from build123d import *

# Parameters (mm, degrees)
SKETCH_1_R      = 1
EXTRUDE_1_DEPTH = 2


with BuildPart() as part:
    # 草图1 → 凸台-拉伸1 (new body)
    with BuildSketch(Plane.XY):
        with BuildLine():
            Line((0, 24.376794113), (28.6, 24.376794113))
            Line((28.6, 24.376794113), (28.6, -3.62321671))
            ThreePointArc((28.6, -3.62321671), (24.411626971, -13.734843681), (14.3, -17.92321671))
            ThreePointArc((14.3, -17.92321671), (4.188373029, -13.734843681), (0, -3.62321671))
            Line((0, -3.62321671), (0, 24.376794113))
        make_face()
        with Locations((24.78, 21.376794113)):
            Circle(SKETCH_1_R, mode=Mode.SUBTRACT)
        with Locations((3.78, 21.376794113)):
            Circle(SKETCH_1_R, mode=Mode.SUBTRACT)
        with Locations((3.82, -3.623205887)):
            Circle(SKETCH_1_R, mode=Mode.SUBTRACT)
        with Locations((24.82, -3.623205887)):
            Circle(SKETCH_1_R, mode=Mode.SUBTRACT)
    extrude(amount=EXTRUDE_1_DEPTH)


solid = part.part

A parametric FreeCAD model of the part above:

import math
import FreeCAD as App
import Part
import Sketcher

V = App.Vector
Q = App.Units.Quantity

doc = App.newDocument("Part")
body = doc.addObject("PartDesign::Body", "Body")

sketch1 = doc.addObject("Sketcher::SketchObject", "Sketch")
body.addObject(sketch1)
sketch1.AttachmentSupport = (doc.XY_Plane, [""])
sketch1.MapMode = "FlatFace"
sketch1.addGeometry([
    Part.LineSegment(V(28.6, 24.4, 0), V(0, 24.4, 0)),
    Part.LineSegment(V(0, 24.4, 0), V(0, -3.6, 0)),
    Part.ArcOfCircle(Part.Circle(V(14.3, -3.6, 0), V(0, 0, 1), 14.3), math.radians(180), math.radians(270)),
    Part.ArcOfCircle(Part.Circle(V(14.3, -3.6, 0), V(0, 0, 1), 14.3), math.radians(-90), math.radians(0)),
    Part.LineSegment(V(28.6, -3.6, 0), V(28.6, 24.4, 0)),
    Part.Circle(V(24.8, -3.6, 0), V(0, 0, 1), 1),
    Part.Circle(V(3.8, -3.6, 0), V(0, 0, 1), 1),
    Part.Circle(V(24.8, 21.4, 0), V(0, 0, 1), 1),
    Part.Circle(V(3.8, 21.4, 0), V(0, 0, 1), 1),
], False)
sketch1.addConstraint([
    Sketcher.Constraint("Coincident", 0, 2, 1, 1),
    Sketcher.Constraint("Tangent", 1, 2, 2, 1),
    Sketcher.Constraint("Tangent", 2, 2, 3, 1),
    Sketcher.Constraint("Tangent", 3, 2, 4, 1),
    Sketcher.Constraint("Coincident", 4, 2, 0, 1),
    Sketcher.Constraint("Horizontal", 0),
    Sketcher.Constraint("Vertical", 1),
    Sketcher.Constraint("Vertical", 4),
    Sketcher.Constraint("Equal", 2, 3),
    Sketcher.Constraint("Equal", 5, 6),
    Sketcher.Constraint("Equal", 6, 7),
    Sketcher.Constraint("Equal", 7, 8),
    Sketcher.Constraint("PointOnObject", 0, 2, -2),
    Sketcher.Constraint("Horizontal", 5, 3, 6, 3),
    Sketcher.Constraint("Horizontal", 7, 3, 8, 3),
    Sketcher.Constraint("Vertical", 3, 3, 2, 2),
    Sketcher.Constraint("Diameter", 5, Q("2 mm")),
    Sketcher.Constraint("Radius", 2, Q("14.3 mm")),
    Sketcher.Constraint("DistanceX", 6, 3, 5, 3, Q("21 mm")),
    Sketcher.Constraint("DistanceY", 5, 3, 7, 3, Q("25 mm")),
    Sketcher.Constraint("DistanceX", 8, 3, 7, 3, Q("21 mm")),
    Sketcher.Constraint("DistanceY", 8, 3, 0, 2, Q("3 mm")),
    Sketcher.Constraint("DistanceX", -1, 1, 5, 3, Q("24.82 mm")),
    Sketcher.Constraint("DistanceX", -1, 1, 7, 3, Q("24.78 mm")),
    Sketcher.Constraint("DistanceY", 1, 2, 1, 1, Q("28.000011 mm")),
    Sketcher.Constraint("DistanceY", 2, 3, -1, 1, Q("3.623217 mm")),
])
pad1 = doc.addObject("PartDesign::Pad", "Pad")
body.addObject(pad1)
pad1.Profile = sketch1
pad1.Length = 2

doc.recompute()
